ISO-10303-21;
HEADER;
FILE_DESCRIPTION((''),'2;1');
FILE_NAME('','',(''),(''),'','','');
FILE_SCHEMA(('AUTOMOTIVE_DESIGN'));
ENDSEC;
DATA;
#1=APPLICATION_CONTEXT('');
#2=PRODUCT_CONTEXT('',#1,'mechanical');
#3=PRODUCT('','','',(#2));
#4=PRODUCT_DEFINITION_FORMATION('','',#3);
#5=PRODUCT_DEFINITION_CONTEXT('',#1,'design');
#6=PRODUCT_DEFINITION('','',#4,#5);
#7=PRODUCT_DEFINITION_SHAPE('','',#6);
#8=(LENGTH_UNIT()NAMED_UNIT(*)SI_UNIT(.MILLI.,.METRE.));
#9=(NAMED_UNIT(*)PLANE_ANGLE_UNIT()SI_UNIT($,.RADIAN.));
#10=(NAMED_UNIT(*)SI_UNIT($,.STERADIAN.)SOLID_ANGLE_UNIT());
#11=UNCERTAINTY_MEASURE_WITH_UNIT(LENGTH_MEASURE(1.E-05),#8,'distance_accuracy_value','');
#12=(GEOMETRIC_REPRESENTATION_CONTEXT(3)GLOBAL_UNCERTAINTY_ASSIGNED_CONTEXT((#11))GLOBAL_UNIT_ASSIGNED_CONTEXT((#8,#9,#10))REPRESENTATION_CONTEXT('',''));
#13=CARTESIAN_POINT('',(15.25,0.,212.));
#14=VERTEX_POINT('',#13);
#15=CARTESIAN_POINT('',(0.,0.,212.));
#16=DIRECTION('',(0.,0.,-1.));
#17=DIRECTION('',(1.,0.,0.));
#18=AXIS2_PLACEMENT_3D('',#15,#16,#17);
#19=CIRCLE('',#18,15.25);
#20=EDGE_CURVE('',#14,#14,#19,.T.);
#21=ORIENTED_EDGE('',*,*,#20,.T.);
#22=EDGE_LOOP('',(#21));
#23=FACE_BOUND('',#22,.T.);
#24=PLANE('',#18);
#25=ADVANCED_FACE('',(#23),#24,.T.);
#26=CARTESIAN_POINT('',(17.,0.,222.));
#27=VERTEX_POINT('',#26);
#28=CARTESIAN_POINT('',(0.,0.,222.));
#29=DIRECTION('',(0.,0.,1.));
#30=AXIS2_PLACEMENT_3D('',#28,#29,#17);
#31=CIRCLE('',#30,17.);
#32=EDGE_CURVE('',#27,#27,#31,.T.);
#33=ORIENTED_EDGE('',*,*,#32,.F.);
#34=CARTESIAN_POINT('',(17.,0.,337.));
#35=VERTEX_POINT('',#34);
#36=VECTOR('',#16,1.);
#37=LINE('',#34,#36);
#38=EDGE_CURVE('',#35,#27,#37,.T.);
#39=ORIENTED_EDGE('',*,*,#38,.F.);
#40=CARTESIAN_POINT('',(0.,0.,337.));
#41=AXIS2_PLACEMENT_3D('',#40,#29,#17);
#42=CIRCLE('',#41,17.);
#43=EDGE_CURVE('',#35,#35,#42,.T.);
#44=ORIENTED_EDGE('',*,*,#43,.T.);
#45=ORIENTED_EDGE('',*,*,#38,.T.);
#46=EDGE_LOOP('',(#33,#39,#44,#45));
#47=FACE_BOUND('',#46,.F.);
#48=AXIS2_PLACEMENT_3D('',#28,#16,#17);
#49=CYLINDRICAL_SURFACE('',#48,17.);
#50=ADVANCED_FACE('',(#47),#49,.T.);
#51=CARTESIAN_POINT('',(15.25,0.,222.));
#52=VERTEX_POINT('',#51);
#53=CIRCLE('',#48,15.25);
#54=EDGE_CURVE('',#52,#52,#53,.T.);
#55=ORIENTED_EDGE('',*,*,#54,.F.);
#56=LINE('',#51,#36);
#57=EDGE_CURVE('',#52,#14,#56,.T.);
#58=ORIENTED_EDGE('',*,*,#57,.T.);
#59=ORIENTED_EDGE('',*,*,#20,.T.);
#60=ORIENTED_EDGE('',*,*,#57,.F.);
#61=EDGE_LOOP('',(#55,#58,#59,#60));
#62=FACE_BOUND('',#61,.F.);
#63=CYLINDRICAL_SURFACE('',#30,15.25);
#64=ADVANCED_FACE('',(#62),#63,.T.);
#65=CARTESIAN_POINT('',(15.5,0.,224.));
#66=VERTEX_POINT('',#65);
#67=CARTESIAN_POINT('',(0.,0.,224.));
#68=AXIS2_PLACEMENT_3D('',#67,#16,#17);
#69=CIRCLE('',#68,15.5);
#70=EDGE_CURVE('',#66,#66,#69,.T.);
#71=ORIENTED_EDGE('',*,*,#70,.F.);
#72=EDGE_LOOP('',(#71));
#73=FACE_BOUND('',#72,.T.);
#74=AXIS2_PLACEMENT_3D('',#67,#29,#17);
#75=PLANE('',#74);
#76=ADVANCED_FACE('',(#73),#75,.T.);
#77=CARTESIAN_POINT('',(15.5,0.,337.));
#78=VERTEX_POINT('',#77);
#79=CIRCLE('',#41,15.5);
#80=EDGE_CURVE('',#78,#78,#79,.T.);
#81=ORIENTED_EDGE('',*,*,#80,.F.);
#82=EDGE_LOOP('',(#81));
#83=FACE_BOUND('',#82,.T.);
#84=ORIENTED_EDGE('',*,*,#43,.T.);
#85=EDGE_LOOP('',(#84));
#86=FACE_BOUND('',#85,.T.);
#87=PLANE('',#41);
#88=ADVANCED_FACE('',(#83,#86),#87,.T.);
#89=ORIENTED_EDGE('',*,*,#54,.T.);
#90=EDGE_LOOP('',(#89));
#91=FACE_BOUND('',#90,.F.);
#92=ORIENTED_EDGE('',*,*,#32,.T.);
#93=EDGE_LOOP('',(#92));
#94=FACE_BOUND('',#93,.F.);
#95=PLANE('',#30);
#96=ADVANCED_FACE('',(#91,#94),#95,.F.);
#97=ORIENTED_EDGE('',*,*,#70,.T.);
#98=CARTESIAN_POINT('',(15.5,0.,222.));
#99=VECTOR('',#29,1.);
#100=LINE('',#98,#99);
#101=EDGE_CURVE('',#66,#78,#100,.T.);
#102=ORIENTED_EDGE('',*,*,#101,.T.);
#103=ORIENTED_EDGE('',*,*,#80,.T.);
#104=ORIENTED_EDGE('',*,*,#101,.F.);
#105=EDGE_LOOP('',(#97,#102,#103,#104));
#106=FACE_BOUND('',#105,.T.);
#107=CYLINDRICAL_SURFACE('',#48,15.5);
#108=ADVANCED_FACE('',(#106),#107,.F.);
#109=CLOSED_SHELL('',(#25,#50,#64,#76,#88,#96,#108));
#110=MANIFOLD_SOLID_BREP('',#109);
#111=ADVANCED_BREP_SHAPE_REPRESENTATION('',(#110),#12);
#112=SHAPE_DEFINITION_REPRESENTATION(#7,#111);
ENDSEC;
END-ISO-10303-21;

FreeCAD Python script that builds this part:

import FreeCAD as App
import Part
import Sketcher

doc = App.newDocument("Part")
params = doc.addObject("Spreadsheet::Sheet", "Params")
for row, (alias, value) in enumerate([
    ("sketch1_diameter", "34 mm"),
    ("sketch1_diameter2", "31 mm"),
    ("pad1_length", "115 mm"),
    ("sketch2_diameter", "34 mm"),
    ("pad2_length", "2 mm"),
    ("sketch3_diameter", "30.5 mm"),
    ("pad3_length", "10 mm"),
], start=1):
    params.set(f"A{row}", alias)
    params.set(f"B{row}", "=" + value)
    params.setAlias(f"B{row}", alias)

body = doc.addObject("PartDesign::Body", "Body")

# Sketch on XY plane
sketch1 = doc.addObject("Sketcher::SketchObject", "Sketch")
body.addObject(sketch1)
sketch1.AttachmentSupport = (doc.XY_Plane, [""])
sketch1.MapMode = "FlatFace"
sketch1.AttachmentOffset = App.Placement(App.Vector(0, 0, 222), App.Rotation())
sketch1.addGeometry([
    Part.Circle(App.Vector(0, 0, 0), App.Vector(0, 0, 1), 17),
    Part.Circle(App.Vector(0, 0, 0), App.Vector(0, 0, 1), 16),
], False)
sketch1.addConstraint([
    Sketcher.Constraint("Coincident", 0, 3, -1, 1),
    Sketcher.Constraint("Coincident", 1, 3, -1, 1),
    Sketcher.Constraint("Diameter", 0, 34.0),
    Sketcher.Constraint("Diameter", 1, 31.0),
])
sketch1.setExpression("Constraints[2]", "Params.sketch1_diameter")
sketch1.setExpression("Constraints[3]", "Params.sketch1_diameter2")
pad1 = doc.addObject("PartDesign::Pad", "Pad")
body.addObject(pad1)
pad1.Profile = sketch1
pad1.setExpression("Length", "Params.pad1_length")

# Sketch on XY plane
sketch2 = doc.addObject("Sketcher::SketchObject", "Sketch001")
body.addObject(sketch2)
sketch2.AttachmentSupport = (doc.XY_Plane, [""])
sketch2.MapMode = "FlatFace"
sketch2.AttachmentOffset = App.Placement(App.Vector(0, 0, 222), App.Rotation())
sketch2.addGeometry(Part.Circle(App.Vector(0, 0, 0), App.Vector(0, 0, 1), 17), False)
sketch2.addConstraint([
    Sketcher.Constraint("Coincident", 0, 3, -1, 1),
    Sketcher.Constraint("Diameter", 0, 34.0),
])
sketch2.setExpression("Constraints[1]", "Params.sketch2_diameter")
pad2 = doc.addObject("PartDesign::Pad", "Pad001")
body.addObject(pad2)
pad2.Profile = sketch2
pad2.setExpression("Length", "Params.pad2_length")

# Sketch on XY plane
sketch3 = doc.addObject("Sketcher::SketchObject", "Sketch002")
body.addObject(sketch3)
sketch3.AttachmentSupport = (doc.XY_Plane, [""])
sketch3.MapMode = "FlatFace"
sketch3.AttachmentOffset = App.Placement(App.Vector(0, 0, 222), App.Rotation())
sketch3.addGeometry(Part.Circle(App.Vector(0, 0, 0), App.Vector(0, 0, 1), 15), False)
sketch3.addConstraint([
    Sketcher.Constraint("Coincident", 0, 3, -1, 1),
    Sketcher.Constraint("Diameter", 0, 30.5),
])
sketch3.setExpression("Constraints[1]", "Params.sketch3_diameter")
pad3 = doc.addObject("PartDesign::Pad", "Pad002")
body.addObject(pad3)
pad3.Profile = sketch3
pad3.setExpression("Length", "Params.pad3_length")
pad3.Reversed = True

doc.recompute()
